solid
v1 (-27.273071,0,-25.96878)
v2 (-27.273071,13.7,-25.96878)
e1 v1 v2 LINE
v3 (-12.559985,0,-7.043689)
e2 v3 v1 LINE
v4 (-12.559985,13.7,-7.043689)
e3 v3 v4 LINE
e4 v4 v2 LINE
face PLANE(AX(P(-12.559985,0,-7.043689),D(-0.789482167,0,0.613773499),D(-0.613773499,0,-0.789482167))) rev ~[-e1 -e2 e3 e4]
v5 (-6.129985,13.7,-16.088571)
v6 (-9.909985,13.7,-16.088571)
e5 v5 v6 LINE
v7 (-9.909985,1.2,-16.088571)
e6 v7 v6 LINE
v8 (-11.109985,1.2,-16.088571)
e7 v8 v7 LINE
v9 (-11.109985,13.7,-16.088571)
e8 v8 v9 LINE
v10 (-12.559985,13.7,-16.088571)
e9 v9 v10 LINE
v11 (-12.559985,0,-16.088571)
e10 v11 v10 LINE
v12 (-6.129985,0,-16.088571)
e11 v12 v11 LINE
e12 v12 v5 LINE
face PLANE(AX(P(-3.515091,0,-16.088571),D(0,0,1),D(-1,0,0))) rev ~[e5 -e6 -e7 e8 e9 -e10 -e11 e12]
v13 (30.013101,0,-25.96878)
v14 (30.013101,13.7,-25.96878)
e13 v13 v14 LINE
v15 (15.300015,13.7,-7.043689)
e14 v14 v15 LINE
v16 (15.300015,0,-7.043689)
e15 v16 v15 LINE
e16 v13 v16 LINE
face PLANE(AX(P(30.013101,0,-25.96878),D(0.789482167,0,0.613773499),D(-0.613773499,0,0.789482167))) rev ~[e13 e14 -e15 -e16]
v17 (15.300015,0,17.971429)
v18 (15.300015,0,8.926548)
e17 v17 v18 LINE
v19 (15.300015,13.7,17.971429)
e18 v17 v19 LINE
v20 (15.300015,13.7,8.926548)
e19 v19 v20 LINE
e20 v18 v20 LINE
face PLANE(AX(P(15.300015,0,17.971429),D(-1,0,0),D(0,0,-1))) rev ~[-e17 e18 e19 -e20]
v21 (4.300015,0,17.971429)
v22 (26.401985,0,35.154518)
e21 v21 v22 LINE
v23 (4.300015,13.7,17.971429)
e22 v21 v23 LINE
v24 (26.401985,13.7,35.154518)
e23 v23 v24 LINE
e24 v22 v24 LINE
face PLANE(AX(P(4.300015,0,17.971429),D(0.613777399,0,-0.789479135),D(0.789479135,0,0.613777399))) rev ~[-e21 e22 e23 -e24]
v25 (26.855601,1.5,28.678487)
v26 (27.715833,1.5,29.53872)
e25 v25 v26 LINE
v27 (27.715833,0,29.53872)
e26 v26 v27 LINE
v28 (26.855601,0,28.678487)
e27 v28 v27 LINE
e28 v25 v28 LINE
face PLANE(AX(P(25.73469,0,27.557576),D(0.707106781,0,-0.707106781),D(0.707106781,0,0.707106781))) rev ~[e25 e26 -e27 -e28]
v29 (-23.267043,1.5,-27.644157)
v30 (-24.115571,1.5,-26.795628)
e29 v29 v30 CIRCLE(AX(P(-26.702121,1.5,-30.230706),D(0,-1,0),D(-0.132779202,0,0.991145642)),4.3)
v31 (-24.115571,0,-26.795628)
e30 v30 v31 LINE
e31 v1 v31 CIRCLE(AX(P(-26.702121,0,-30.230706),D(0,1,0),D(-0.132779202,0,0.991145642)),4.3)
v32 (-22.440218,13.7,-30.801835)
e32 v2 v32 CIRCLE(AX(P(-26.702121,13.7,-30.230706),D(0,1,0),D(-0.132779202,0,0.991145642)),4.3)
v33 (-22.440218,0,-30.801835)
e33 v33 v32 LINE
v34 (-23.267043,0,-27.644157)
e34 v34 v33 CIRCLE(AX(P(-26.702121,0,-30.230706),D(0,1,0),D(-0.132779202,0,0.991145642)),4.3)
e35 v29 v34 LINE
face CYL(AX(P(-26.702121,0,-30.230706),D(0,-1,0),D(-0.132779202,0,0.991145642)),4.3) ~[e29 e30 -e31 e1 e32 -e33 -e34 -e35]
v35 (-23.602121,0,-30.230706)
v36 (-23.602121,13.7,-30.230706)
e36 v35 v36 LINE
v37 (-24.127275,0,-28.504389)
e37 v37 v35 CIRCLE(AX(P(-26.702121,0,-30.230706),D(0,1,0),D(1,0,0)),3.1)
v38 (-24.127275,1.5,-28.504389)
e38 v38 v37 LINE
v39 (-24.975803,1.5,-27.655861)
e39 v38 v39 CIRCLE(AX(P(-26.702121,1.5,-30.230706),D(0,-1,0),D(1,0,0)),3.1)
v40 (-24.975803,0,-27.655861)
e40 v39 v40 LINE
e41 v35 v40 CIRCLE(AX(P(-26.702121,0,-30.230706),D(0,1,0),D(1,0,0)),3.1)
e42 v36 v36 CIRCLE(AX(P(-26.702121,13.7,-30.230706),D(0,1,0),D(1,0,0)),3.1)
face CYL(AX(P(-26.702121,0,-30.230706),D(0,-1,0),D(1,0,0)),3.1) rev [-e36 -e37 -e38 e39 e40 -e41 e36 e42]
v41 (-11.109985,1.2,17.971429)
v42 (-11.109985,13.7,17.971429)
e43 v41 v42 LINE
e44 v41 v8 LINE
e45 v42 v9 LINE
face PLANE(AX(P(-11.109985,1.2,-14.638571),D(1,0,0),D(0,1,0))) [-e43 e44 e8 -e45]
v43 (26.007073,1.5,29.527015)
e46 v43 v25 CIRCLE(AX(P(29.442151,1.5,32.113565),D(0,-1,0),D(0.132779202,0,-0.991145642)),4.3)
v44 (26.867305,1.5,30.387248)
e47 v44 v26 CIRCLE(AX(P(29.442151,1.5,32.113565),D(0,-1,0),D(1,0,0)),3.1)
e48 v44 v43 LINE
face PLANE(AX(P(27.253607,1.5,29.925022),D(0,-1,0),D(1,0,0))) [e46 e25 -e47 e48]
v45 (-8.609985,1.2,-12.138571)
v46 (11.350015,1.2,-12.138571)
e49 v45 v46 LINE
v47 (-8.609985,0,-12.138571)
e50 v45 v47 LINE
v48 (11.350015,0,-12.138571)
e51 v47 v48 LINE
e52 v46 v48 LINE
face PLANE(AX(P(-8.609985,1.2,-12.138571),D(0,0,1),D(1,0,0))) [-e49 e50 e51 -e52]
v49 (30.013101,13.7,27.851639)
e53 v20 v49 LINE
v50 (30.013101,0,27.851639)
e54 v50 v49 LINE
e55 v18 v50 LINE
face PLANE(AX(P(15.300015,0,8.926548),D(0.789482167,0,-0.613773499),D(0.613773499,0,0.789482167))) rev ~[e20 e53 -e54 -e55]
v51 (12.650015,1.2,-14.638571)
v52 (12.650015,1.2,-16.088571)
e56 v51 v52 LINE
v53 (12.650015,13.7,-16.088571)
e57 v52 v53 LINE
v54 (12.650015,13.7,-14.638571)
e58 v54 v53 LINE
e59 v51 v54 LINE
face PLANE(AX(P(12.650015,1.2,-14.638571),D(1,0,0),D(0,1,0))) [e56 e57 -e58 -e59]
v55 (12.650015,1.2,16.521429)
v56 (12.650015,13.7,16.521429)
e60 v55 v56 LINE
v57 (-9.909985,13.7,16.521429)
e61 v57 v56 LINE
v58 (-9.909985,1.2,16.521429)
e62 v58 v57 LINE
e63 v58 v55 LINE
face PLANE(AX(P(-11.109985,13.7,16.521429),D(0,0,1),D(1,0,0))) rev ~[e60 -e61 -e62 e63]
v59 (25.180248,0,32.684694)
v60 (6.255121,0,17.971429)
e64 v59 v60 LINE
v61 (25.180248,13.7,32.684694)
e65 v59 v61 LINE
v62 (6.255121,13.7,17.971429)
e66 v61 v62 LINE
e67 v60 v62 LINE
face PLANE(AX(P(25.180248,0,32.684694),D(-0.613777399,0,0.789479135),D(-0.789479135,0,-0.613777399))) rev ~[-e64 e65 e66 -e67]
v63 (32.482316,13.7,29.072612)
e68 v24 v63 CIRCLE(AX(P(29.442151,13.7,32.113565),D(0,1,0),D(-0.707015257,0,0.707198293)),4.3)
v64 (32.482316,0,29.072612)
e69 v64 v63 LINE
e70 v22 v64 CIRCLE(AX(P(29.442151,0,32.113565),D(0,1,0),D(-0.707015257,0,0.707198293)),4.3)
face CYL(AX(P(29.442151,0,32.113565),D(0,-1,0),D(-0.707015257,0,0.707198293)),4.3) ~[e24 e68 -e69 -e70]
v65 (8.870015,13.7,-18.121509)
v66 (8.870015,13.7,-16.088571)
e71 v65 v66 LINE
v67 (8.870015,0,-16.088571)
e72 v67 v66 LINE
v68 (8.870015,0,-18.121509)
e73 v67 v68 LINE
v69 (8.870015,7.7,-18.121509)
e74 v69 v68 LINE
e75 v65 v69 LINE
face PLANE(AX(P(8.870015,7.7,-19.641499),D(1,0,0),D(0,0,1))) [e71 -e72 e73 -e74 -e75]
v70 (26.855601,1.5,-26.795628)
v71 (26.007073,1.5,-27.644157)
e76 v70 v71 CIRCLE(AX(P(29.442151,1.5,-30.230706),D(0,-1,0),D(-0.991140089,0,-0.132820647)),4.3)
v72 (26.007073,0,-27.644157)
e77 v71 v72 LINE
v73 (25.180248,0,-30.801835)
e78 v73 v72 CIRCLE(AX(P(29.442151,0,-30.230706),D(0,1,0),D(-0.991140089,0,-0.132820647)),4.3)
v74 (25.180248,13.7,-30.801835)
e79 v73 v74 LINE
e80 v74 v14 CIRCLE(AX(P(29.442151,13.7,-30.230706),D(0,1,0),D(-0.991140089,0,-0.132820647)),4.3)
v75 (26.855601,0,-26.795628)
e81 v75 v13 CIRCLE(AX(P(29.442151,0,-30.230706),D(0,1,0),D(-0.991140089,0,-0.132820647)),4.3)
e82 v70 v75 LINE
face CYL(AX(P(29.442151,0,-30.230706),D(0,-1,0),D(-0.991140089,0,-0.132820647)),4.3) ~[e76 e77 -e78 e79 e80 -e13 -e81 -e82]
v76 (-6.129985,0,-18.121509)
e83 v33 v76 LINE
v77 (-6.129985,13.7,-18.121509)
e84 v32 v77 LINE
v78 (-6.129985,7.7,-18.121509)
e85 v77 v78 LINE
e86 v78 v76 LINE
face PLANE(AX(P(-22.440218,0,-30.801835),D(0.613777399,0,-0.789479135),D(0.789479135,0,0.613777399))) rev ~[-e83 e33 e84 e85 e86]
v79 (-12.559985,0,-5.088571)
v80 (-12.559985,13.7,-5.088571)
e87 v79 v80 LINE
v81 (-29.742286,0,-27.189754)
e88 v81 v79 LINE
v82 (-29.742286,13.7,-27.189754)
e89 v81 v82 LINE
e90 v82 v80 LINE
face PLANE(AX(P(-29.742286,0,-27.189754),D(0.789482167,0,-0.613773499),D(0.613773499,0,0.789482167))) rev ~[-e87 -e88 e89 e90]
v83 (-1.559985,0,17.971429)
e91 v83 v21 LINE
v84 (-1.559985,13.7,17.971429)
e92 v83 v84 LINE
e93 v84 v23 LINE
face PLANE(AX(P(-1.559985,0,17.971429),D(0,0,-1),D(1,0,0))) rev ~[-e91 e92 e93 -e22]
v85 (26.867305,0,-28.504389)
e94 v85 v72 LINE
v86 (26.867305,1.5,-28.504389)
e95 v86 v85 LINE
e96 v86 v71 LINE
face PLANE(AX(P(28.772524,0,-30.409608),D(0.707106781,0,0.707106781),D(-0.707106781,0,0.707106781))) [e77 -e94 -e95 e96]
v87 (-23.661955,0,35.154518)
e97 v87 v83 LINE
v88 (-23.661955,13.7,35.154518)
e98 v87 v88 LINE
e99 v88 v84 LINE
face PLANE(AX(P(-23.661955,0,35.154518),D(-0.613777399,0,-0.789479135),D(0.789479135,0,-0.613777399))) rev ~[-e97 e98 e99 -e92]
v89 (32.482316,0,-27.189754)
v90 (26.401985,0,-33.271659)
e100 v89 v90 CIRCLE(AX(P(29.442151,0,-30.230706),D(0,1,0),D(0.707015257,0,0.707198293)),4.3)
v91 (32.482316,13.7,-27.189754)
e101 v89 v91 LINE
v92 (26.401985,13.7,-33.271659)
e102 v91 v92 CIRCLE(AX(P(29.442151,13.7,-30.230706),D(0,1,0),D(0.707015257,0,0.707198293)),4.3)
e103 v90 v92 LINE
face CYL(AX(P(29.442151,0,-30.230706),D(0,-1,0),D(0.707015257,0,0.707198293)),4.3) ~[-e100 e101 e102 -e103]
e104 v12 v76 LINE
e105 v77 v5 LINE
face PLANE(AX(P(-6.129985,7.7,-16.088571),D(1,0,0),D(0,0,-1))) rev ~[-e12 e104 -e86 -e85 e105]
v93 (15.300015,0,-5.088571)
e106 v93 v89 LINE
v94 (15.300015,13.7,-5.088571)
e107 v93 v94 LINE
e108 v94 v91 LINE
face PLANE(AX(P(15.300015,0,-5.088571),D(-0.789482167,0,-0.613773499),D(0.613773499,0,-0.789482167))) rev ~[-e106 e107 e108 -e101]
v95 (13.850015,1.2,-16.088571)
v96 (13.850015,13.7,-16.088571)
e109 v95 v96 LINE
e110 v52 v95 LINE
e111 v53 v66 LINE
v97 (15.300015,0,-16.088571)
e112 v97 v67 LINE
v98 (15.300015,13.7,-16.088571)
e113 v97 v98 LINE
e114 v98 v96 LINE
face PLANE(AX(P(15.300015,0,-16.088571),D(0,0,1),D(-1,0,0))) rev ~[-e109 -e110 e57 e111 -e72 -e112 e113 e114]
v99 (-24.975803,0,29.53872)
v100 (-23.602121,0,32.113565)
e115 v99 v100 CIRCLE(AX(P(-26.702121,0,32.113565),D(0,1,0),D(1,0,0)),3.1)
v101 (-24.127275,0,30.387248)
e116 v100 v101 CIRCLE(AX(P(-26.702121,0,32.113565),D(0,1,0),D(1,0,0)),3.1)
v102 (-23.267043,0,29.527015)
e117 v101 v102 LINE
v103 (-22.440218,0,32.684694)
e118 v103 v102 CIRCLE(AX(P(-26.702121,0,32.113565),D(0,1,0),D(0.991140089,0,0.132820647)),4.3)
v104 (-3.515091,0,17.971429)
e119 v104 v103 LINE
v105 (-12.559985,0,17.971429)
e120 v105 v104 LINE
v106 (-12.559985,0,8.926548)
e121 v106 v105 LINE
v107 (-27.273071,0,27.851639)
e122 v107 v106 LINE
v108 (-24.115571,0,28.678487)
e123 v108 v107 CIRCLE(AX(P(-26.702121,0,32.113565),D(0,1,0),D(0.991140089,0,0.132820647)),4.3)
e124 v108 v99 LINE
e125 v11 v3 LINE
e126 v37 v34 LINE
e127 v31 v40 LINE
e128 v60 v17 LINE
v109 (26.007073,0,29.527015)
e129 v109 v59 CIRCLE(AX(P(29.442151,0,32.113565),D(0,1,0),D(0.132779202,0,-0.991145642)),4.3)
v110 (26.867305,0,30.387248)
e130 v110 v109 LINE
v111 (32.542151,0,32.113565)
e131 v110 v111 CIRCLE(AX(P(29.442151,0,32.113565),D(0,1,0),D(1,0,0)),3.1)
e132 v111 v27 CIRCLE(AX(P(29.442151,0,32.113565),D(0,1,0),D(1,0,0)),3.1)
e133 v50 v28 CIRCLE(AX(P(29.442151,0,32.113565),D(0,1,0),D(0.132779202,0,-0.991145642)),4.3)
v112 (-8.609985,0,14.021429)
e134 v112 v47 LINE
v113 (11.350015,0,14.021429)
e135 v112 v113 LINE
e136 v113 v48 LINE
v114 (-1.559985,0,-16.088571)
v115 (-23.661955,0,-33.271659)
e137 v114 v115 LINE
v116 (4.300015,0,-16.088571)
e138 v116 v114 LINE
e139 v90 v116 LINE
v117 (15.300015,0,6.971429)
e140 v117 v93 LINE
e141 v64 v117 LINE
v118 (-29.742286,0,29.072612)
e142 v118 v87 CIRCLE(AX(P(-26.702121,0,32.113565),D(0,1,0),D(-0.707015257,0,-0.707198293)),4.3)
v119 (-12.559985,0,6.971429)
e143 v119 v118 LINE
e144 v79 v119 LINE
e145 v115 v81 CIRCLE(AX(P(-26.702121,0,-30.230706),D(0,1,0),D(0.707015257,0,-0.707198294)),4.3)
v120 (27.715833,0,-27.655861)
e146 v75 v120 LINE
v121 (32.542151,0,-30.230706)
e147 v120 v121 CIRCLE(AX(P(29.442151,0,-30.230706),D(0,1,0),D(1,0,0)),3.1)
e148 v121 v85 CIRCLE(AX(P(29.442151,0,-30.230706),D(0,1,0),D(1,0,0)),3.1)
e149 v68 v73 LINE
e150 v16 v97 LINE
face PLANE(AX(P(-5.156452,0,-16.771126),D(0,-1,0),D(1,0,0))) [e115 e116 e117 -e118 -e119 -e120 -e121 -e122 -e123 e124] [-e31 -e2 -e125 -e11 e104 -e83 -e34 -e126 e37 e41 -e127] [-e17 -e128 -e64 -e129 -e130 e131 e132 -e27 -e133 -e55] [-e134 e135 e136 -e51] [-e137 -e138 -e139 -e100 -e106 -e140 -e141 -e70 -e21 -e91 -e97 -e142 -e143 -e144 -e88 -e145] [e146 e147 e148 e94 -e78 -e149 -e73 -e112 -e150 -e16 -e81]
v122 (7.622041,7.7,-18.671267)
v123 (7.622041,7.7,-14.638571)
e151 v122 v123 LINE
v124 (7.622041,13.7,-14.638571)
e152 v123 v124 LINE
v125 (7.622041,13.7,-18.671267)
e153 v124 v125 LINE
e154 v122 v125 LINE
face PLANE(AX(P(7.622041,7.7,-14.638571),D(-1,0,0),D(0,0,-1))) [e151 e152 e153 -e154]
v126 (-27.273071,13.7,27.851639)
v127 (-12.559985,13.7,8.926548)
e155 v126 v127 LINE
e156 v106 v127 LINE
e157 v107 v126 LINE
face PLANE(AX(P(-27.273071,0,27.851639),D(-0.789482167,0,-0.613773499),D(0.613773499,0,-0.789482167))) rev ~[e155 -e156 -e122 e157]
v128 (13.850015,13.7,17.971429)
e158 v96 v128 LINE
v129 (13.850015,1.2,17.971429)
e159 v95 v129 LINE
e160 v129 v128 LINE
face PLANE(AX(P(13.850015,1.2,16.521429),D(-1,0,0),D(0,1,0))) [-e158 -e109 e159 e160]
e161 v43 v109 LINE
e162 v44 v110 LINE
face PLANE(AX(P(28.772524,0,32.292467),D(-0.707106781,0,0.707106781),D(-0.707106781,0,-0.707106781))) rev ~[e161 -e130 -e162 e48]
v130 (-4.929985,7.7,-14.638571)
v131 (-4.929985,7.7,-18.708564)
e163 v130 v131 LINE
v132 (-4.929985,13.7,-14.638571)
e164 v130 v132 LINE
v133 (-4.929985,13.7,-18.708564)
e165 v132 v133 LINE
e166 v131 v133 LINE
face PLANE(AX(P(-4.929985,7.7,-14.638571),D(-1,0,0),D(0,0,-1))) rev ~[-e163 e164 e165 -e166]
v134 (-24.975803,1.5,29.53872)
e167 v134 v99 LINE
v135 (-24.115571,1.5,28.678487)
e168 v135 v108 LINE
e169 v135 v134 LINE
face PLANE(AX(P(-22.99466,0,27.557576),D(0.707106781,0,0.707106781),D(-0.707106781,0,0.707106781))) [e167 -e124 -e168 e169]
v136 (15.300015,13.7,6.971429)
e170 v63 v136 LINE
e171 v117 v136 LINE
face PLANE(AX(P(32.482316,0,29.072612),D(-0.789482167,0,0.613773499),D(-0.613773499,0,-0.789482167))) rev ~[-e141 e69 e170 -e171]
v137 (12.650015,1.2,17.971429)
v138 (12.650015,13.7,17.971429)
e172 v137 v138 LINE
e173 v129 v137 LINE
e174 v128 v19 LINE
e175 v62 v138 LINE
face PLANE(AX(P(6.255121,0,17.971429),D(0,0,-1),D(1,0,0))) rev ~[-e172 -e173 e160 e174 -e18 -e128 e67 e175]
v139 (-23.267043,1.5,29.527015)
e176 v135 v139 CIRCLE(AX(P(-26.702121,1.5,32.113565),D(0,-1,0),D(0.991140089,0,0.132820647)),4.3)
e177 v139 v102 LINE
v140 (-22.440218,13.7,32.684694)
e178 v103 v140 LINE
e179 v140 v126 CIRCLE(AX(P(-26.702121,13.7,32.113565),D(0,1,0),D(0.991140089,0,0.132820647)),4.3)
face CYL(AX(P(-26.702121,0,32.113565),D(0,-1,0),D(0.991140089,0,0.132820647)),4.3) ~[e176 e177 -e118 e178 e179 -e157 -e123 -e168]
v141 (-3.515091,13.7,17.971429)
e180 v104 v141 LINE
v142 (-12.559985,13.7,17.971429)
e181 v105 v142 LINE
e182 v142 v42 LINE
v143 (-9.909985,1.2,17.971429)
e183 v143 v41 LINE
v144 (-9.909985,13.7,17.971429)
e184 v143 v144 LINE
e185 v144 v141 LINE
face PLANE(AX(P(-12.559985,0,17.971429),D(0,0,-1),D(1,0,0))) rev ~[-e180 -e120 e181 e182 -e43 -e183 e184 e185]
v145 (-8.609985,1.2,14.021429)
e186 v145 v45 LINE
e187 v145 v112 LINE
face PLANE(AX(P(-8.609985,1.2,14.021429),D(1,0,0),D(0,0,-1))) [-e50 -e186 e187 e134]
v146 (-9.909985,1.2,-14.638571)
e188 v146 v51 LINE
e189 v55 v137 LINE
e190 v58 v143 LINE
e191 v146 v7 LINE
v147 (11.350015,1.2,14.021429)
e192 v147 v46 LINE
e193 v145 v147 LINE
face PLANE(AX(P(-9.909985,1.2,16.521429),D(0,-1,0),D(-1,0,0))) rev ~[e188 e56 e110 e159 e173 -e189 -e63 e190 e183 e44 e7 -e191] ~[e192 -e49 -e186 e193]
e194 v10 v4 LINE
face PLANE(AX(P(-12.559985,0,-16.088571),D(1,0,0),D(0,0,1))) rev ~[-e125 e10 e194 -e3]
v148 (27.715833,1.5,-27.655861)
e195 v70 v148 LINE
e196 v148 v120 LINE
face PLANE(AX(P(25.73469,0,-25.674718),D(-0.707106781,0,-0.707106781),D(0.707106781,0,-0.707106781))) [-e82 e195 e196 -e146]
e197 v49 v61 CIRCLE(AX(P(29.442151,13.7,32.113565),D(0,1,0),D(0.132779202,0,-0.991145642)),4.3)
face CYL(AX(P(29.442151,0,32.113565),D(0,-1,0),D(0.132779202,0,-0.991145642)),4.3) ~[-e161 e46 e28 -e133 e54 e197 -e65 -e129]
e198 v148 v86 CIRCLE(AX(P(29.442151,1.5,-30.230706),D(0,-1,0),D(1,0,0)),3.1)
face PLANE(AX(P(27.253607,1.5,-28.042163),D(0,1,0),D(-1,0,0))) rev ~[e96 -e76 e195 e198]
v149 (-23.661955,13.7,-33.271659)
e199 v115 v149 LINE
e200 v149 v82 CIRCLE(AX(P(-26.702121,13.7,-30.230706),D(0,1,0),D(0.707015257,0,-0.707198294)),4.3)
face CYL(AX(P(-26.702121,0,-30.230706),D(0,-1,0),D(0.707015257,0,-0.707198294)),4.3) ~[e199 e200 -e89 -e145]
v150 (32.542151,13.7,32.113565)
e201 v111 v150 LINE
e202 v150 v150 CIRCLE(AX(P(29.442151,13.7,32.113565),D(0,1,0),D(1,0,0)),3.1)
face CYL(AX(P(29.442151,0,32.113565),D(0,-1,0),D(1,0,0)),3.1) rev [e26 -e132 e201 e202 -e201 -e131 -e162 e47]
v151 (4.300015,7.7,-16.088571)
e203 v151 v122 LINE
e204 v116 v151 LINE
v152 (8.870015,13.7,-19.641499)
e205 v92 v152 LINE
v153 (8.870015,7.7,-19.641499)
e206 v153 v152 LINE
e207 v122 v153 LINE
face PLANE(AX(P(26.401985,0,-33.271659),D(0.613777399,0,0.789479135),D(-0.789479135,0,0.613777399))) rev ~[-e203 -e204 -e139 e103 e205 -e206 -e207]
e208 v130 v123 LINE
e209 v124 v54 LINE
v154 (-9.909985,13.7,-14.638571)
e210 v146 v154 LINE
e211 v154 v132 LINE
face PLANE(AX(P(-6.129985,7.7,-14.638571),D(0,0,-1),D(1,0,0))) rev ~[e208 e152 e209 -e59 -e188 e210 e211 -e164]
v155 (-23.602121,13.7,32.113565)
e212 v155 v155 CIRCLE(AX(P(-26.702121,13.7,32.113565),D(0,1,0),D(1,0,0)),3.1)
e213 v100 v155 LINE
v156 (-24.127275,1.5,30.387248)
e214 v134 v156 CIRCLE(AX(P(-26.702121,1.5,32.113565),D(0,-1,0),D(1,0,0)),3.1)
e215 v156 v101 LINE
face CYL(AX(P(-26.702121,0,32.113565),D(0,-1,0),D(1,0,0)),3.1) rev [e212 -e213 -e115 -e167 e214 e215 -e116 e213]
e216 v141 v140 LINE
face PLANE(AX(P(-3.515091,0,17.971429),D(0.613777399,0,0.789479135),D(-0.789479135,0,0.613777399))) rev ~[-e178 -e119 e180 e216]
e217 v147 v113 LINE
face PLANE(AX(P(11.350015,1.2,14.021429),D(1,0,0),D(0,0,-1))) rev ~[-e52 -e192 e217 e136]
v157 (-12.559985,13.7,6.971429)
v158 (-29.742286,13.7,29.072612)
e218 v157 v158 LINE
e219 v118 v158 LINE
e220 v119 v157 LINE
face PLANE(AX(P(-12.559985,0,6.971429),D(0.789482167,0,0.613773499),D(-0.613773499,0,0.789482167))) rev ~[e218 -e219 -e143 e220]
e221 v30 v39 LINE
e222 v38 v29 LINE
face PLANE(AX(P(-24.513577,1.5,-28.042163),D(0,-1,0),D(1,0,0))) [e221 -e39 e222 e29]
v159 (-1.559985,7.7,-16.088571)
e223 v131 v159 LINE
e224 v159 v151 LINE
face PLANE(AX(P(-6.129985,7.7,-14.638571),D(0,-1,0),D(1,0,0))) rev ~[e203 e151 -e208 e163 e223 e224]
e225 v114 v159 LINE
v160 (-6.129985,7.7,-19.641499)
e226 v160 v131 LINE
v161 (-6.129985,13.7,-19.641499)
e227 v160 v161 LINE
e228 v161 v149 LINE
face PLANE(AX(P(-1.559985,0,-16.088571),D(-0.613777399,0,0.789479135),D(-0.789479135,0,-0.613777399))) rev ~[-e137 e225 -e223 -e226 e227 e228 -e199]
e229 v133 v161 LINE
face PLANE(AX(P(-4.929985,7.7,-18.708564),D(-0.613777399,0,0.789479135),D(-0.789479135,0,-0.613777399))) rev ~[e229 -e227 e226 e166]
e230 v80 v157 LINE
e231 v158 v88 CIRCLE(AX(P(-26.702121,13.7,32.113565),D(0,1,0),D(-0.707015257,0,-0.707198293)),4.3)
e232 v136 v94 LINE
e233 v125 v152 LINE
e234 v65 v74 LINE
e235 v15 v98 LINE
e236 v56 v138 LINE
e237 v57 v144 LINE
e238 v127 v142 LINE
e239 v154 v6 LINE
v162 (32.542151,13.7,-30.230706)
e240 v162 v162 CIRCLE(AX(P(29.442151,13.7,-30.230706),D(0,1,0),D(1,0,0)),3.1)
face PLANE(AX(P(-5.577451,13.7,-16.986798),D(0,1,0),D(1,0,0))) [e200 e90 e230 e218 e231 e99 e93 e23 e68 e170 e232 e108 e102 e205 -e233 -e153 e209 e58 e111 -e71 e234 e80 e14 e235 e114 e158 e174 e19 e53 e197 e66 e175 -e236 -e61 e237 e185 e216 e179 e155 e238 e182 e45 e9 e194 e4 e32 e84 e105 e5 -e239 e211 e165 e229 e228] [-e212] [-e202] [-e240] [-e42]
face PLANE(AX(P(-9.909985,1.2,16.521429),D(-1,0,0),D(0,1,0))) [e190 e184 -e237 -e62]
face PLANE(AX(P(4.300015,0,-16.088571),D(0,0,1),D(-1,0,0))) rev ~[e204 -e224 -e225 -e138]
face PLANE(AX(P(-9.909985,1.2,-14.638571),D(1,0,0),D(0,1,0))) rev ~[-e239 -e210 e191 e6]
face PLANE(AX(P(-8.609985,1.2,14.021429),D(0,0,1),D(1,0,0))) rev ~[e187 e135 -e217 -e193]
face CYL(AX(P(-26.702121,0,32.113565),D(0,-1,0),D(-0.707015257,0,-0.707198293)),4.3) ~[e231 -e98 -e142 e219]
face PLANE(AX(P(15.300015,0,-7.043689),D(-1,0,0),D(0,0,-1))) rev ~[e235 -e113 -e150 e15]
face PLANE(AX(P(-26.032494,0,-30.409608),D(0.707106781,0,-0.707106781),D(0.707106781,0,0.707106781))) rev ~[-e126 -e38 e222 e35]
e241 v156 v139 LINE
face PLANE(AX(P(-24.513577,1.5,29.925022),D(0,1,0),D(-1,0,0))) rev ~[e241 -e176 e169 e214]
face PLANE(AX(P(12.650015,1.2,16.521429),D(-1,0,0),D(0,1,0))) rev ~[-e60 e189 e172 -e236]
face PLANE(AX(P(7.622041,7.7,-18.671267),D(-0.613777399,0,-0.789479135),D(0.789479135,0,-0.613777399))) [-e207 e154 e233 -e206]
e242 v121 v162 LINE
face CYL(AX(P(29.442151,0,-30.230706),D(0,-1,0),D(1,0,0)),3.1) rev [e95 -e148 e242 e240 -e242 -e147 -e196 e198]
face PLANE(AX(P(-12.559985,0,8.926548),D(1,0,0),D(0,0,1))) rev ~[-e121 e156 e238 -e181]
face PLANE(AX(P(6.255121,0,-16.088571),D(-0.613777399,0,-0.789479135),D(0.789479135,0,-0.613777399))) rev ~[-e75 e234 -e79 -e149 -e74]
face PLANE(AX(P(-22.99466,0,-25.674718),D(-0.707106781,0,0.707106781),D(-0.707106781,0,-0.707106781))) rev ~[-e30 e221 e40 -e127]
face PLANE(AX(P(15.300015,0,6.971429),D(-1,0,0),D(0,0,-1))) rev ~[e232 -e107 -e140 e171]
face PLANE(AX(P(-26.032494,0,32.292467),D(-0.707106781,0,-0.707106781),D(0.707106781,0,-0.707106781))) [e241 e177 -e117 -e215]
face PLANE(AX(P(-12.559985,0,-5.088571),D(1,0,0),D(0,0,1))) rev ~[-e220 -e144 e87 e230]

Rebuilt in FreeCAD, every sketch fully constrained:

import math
import FreeCAD as App
import Part
import Sketcher
Q = App.Units.Quantity


def add_polygon(sketch, points):
    """Adds a closed chain of lines whose ends are joined by coincident constraints."""
    first, n = sketch.GeometryCount, len(points)
    for a, b in zip(points, points[1:] + points[:1]):
        sketch.addGeometry(Part.LineSegment(App.Vector(*a, 0), App.Vector(*b, 0)), False)
    for i in range(n):
        sketch.addConstraint(Sketcher.Constraint("Coincident", first + i, 2, first + (i + 1) % n, 1))

doc = App.newDocument("Part")
body = doc.addObject("PartDesign::Body", "Body")

sketch1 = body.newObject("Sketcher::SketchObject", "Sketch")
sketch1.AttachmentSupport = (doc.getObject("XZ_Plane"), [""])
sketch1.MapMode = "FlatFace"
sketch1.addGeometry([
    Part.LineSegment(App.Vector(-1.6, -16.1, 0), App.Vector(-23.7, -33.3, 0)),
    Part.ArcOfCircle(Part.Circle(App.Vector(-26.7, -30.2, 0), App.Vector(0, 0, 1), 4.3), math.radians(135), math.radians(315)),
    Part.LineSegment(App.Vector(-29.7, -27.2, 0), App.Vector(-12.6, -5.1, 0)),
    Part.LineSegment(App.Vector(-12.6, -5.1, 0), App.Vector(-12.6, 7, 0)),
    Part.LineSegment(App.Vector(-12.6, 7, 0), App.Vector(-29.7, 29.1, 0)),
    Part.ArcOfCircle(Part.Circle(App.Vector(-26.7, 32.1, 0), App.Vector(0, 0, 1), 4.3), math.radians(45), math.radians(225)),
    Part.LineSegment(App.Vector(-23.7, 35.2, 0), App.Vector(-1.6, 18, 0)),
    Part.LineSegment(App.Vector(-1.6, 18, 0), App.Vector(4.3, 18, 0)),
    Part.LineSegment(App.Vector(4.3, 18, 0), App.Vector(26.4, 35.2, 0)),
    Part.ArcOfCircle(Part.Circle(App.Vector(29.4, 32.1, 0), App.Vector(0, 0, 1), 4.3), math.radians(-45), math.radians(135)),
    Part.LineSegment(App.Vector(32.5, 29.1, 0), App.Vector(15.3, 7, 0)),
    Part.LineSegment(App.Vector(15.3, 7, 0), App.Vector(15.3, -5.1, 0)),
    Part.LineSegment(App.Vector(15.3, -5.1, 0), App.Vector(32.5, -27.2, 0)),
    Part.ArcOfCircle(Part.Circle(App.Vector(29.4, -30.2, 0), App.Vector(0, 0, 1), 4.3), math.radians(-135), math.radians(45)),
    Part.LineSegment(App.Vector(26.4, -33.3, 0), App.Vector(4.3, -16.1, 0)),
    Part.LineSegment(App.Vector(4.3, -16.1, 0), App.Vector(-1.6, -16.1, 0)),
    Part.Circle(App.Vector(-26.7, 32.1, 0), App.Vector(0, 0, 1), 3.1),
    Part.LineSegment(App.Vector(-27.3, 27.9, 0), App.Vector(-12.6, 8.9, 0)),
    Part.LineSegment(App.Vector(-12.6, 8.9, 0), App.Vector(-12.6, 18, 0)),
    Part.LineSegment(App.Vector(-12.6, 18, 0), App.Vector(-3.5, 18, 0)),
    Part.LineSegment(App.Vector(-3.5, 18, 0), App.Vector(-22.4, 32.7, 0)),
    Part.ArcOfCircle(Part.Circle(App.Vector(-26.7, 32.1, 0), App.Vector(0, 0, 1), 4.3), math.radians(-98), math.radians(8)),
    Part.Circle(App.Vector(29.4, 32.1, 0), App.Vector(0, 0, 1), 3.1),
    Part.LineSegment(App.Vector(6.3, 18, 0), App.Vector(15.3, 18, 0)),
    Part.LineSegment(App.Vector(15.3, 18, 0), App.Vector(15.3, 8.9, 0)),
    Part.LineSegment(App.Vector(15.3, 8.9, 0), App.Vector(30, 27.9, 0)),
    Part.ArcOfCircle(Part.Circle(App.Vector(29.4, 32.1, 0), App.Vector(0, 0, 1), 4.3), math.radians(172), math.radians(278)),
    Part.LineSegment(App.Vector(25.2, 32.7, 0), App.Vector(6.3, 18, 0)),
    Part.LineSegment(App.Vector(-22.4, -30.8, 0), App.Vector(-3.5, -16.1, 0)),
    Part.LineSegment(App.Vector(-3.5, -16.1, 0), App.Vector(-12.6, -16.1, 0)),
    Part.LineSegment(App.Vector(-12.6, -16.1, 0), App.Vector(-12.6, -7, 0)),
    Part.LineSegment(App.Vector(-12.6, -7, 0), App.Vector(-27.3, -26, 0)),
    Part.ArcOfCircle(Part.Circle(App.Vector(-26.7, -30.2, 0), App.Vector(0, 0, 1), 4.3), math.radians(-8), math.radians(98)),
    Part.Circle(App.Vector(-26.7, -30.2, 0), App.Vector(0, 0, 1), 3.1),
    Part.LineSegment(App.Vector(30, -26, 0), App.Vector(15.3, -7, 0)),
    Part.LineSegment(App.Vector(15.3, -7, 0), App.Vector(15.3, -16.1, 0)),
    Part.LineSegment(App.Vector(15.3, -16.1, 0), App.Vector(6.3, -16.1, 0)),
    Part.LineSegment(App.Vector(6.3, -16.1, 0), App.Vector(25.2, -30.8, 0)),
    Part.ArcOfCircle(Part.Circle(App.Vector(29.4, -30.2, 0), App.Vector(0, 0, 1), 4.3), math.radians(82), math.radians(188)),
    Part.Circle(App.Vector(29.4, -30.2, 0), App.Vector(0, 0, 1), 3.1),
], False)
sketch1.addConstraint([
    Sketcher.Constraint("Coincident", 0, 2, 1, 2),
    Sketcher.Constraint("Coincident", 1, 1, 2, 1),
    Sketcher.Constraint("Coincident", 2, 2, 3, 1),
    Sketcher.Constraint("Coincident", 3, 2, 4, 1),
    Sketcher.Constraint("Coincident", 4, 2, 5, 2),
    Sketcher.Constraint("Coincident", 5, 1, 6, 1),
    Sketcher.Constraint("Coincident", 6, 2, 7, 1),
    Sketcher.Constraint("Coincident", 7, 2, 8, 1),
    Sketcher.Constraint("Coincident", 8, 2, 9, 2),
    Sketcher.Constraint("Coincident", 9, 1, 10, 1),
    Sketcher.Constraint("Coincident", 10, 2, 11, 1),
    Sketcher.Constraint("Coincident", 11, 2, 12, 1),
    Sketcher.Constraint("Coincident", 12, 2, 13, 2),
    Sketcher.Constraint("Coincident", 13, 1, 14, 1),
    Sketcher.Constraint("Coincident", 14, 2, 15, 1),
    Sketcher.Constraint("Coincident", 15, 2, 0, 1),
    Sketcher.Constraint("Coincident", 17, 2, 18, 1),
    Sketcher.Constraint("Coincident", 18, 2, 19, 1),
    Sketcher.Constraint("Coincident", 19, 2, 20, 1),
    Sketcher.Constraint("Coincident", 20, 2, 21, 2),
    Sketcher.Constraint("Coincident", 21, 1, 17, 1),
    Sketcher.Constraint("Coincident", 23, 2, 24, 1),
    Sketcher.Constraint("Coincident", 24, 2, 25, 1),
    Sketcher.Constraint("Coincident", 25, 2, 26, 2),
    Sketcher.Constraint("Coincident", 26, 1, 27, 1),
    Sketcher.Constraint("Coincident", 27, 2, 23, 1),
    Sketcher.Constraint("Coincident", 28, 2, 29, 1),
    Sketcher.Constraint("Coincident", 29, 2, 30, 1),
    Sketcher.Constraint("Coincident", 30, 2, 31, 1),
    Sketcher.Constraint("Coincident", 31, 2, 32, 2),
    Sketcher.Constraint("Coincident", 32, 1, 28, 1),
    Sketcher.Constraint("Coincident", 34, 2, 35, 1),
    Sketcher.Constraint("Coincident", 35, 2, 36, 1),
    Sketcher.Constraint("Coincident", 36, 2, 37, 1),
    Sketcher.Constraint("Coincident", 37, 2, 38, 2),
    Sketcher.Constraint("Coincident", 38, 1, 34, 1),
    Sketcher.Constraint("Vertical", 3),
    Sketcher.Constraint("Horizontal", 7),
    Sketcher.Constraint("Vertical", 11),
    Sketcher.Constraint("Horizontal", 15),
    Sketcher.Constraint("Vertical", 18),
    Sketcher.Constraint("Horizontal", 19),
    Sketcher.Constraint("Horizontal", 23),
    Sketcher.Constraint("Vertical", 24),
    Sketcher.Constraint("Horizontal", 29),
    Sketcher.Constraint("Vertical", 30),
    Sketcher.Constraint("Vertical", 35),
    Sketcher.Constraint("Horizontal", 36),
    Sketcher.Constraint("Coincident", 16, 3, 5, 3),
    Sketcher.Constraint("Coincident", 21, 3, 5, 3),
    Sketcher.Constraint("Coincident", 22, 3, 9, 3),
    Sketcher.Constraint("Coincident", 26, 3, 9, 3),
    Sketcher.Constraint("Coincident", 32, 3, 1, 3),
    Sketcher.Constraint("Coincident", 33, 3, 1, 3),
    Sketcher.Constraint("Coincident", 38, 3, 13, 3),
    Sketcher.Constraint("Coincident", 39, 3, 13, 3),
    Sketcher.Constraint("Equal", 1, 5),
    Sketcher.Constraint("Equal", 5, 9),
    Sketcher.Constraint("Equal", 9, 13),
    Sketcher.Constraint("Equal", 13, 21),
    Sketcher.Constraint("Equal", 16, 22),
    Sketcher.Constraint("Equal", 21, 26),
    Sketcher.Constraint("Equal", 26, 32),
    Sketcher.Constraint("Equal", 22, 33),
    Sketcher.Constraint("Equal", 32, 38),
    Sketcher.Constraint("Equal", 33, 39),
    Sketcher.Constraint("Parallel", 0, 8),
    Sketcher.Constraint("Parallel", 2, 10),
    Sketcher.Constraint("Parallel", 4, 12),
    Sketcher.Constraint("Parallel", 6, 14),
    Sketcher.Constraint("Parallel", 12, 17),
    Sketcher.Constraint("Parallel", 14, 20),
    Sketcher.Constraint("Parallel", 10, 25),
    Sketcher.Constraint("Parallel", 8, 27),
    Sketcher.Constraint("Parallel", 27, 28),
    Sketcher.Constraint("Parallel", 25, 31),
    Sketcher.Constraint("Parallel", 17, 34),
    Sketcher.Constraint("Parallel", 20, 37),
    Sketcher.Constraint("Horizontal", 5, 3, 9, 3),
    Sketcher.Constraint("Horizontal", 1, 3, 13, 3),
    Sketcher.Constraint("Horizontal", 5, 1, 8, 2),
    Sketcher.Constraint("Horizontal", 4, 2, 9, 1),
    Sketcher.Constraint("Horizontal", 3, 2, 10, 2),
    Sketcher.Constraint("Horizontal", 2, 2, 11, 2),
    Sketcher.Constraint("Horizontal", 1, 1, 12, 2),
    Sketcher.Constraint("Horizontal", 0, 2, 13, 1),
    Sketcher.Constraint("Horizontal", 7, 2, 18, 2),
    Sketcher.Constraint("Horizontal", 19, 2, 23, 2),
    Sketcher.Constraint("Horizontal", 17, 2, 24, 2),
    Sketcher.Constraint("Horizontal", 21, 1, 25, 2),
    Sketcher.Constraint("Horizontal", 20, 2, 26, 1),
    Sketcher.Constraint("Horizontal", 15, 2, 28, 2),
    Sketcher.Constraint("Horizontal", 30, 2, 34, 2),
    Sketcher.Constraint("Horizontal", 29, 2, 35, 2),
    Sketcher.Constraint("Horizontal", 32, 1, 37, 2),
    Sketcher.Constraint("Horizontal", 31, 2, 38, 1),
    Sketcher.Constraint("Vertical", 1, 3, 5, 3),
    Sketcher.Constraint("Vertical", 9, 3, 13, 3),
    Sketcher.Constraint("Vertical", 1, 1, 4, 2),
    Sketcher.Constraint("Vertical", 0, 2, 5, 1),
    Sketcher.Constraint("Vertical", 7, 2, 14, 2),
    Sketcher.Constraint("Vertical", 6, 2, 15, 2),
    Sketcher.Constraint("Vertical", 3, 2, 17, 2),
    Sketcher.Constraint("Vertical", 19, 2, 28, 2),
    Sketcher.Constraint("Vertical", 18, 2, 29, 2),
    Sketcher.Constraint("Vertical", 21, 1, 31, 2),
    Sketcher.Constraint("Diameter", 16, Q("6.2 mm")),
    Sketcher.Constraint("Radius", 1, Q("4.3 mm")),
    Sketcher.Constraint("DistanceX", 3, 2, 6, 2, Q("11 mm")),
    Sketcher.Constraint("DistanceY", 3, 2, 6, 2, Q("11 mm")),
    Sketcher.Constraint("DistanceX", 7, 1, 7, 2, Q("5.86 mm")),
    Sketcher.Constraint("DistanceY", 3, 1, 3, 2, Q("12.06 mm")),
    Sketcher.Constraint("DistanceY", 18, 1, 18, 2, Q("9.044881 mm")),
    Sketcher.Constraint("DistanceX", -1, 1, 25, 2, Q("30.013101 mm")),
    Sketcher.Constraint("DistanceX", 1, 1, 2, 2, Q("17.182301 mm")),
    Sketcher.Constraint("Distance", 2, Q("27.994531 mm")),
    Sketcher.Constraint("DistanceX", 19, 1, 19, 2, Q("9.044894 mm")),
    Sketcher.Constraint("DistanceX", 1, 3, -1, 1, Q("26.702121 mm")),
    Sketcher.Constraint("DistanceY", 0, 2, -1, 1, Q("33.271659 mm")),
    Sketcher.Constraint("DistanceY", 2, 2, -1, 1, Q("5.088571 mm")),
])
pad1 = body.newObject("PartDesign::Pad", "Pad")
pad1.Profile = sketch1
pad1.Length = 13.7
pad1.Reversed = True

sketch2 = body.newObject("Sketcher::SketchObject", "Sketch001")
sketch2.AttachmentSupport = (doc.getObject("XZ_Plane"), [""])
sketch2.MapMode = "FlatFace"
sketch2.AttachmentOffset = App.Placement(App.Vector(0, 0, -13.7), App.Rotation())
add_polygon(sketch2, [(-11, -15), (-11, 17), (14, 17), (14, -15)])
sketch2.addConstraint([
    Sketcher.Constraint("Vertical", 0),
    Sketcher.Constraint("Horizontal", 1),
    Sketcher.Constraint("Vertical", 2),
    Sketcher.Constraint("Horizontal", 3),
    Sketcher.Constraint("DistanceX", 1, 1, 1, 2, Q("24.96 mm")),
    Sketcher.Constraint("DistanceY", 0, 1, 0, 2, Q("31.16 mm")),
    Sketcher.Constraint("DistanceY", -1, 1, 0, 2, Q("16.521429 mm")),
    Sketcher.Constraint("DistanceX", 0, 2, -1, 1, Q("11.109985 mm")),
])
pocket1 = body.newObject("PartDesign::Pocket", "Pocket")
pocket1.Profile = sketch2
pocket1.Length = 12.5
pocket1.Reversed = True

sketch3 = body.newObject("Sketcher::SketchObject", "Sketch002")
sketch3.AttachmentSupport = (doc.getObject("XZ_Plane"), [""])
sketch3.MapMode = "FlatFace"
sketch3.AttachmentOffset = App.Placement(App.Vector(0, 0, -1.2), App.Rotation())
add_polygon(sketch3, [(-9, -12), (-9, 14), (11, 14), (11, -12)])
sketch3.addConstraint([
    Sketcher.Constraint("Vertical", 0),
    Sketcher.Constraint("Horizontal", 1),
    Sketcher.Constraint("Vertical", 2),
    Sketcher.Constraint("Horizontal", 3),
    Sketcher.Constraint("DistanceX", 1, 1, 1, 2, Q("19.96 mm")),
    Sketcher.Constraint("DistanceY", 0, 1, 0, 2, Q("26.16 mm")),
    Sketcher.Constraint("DistanceY", -1, 1, 0, 2, Q("14.021429 mm")),
    Sketcher.Constraint("DistanceX", 0, 2, -1, 1, Q("8.609985 mm")),
])
pocket2 = body.newObject("PartDesign::Pocket", "Pocket001")
pocket2.Profile = sketch3
pocket2.Length = 12.5
pocket2.Reversed = True

sketch4 = body.newObject("Sketcher::SketchObject", "Sketch003")
sketch4.AttachmentSupport = (doc.getObject("XY_Plane"), [""])
sketch4.MapMode = "FlatFace"
sketch4.AttachmentOffset = App.Placement(App.Vector(0, 0, -14.638571), App.Rotation())
add_polygon(sketch4, [(-11.1, 13.7), (-11.1, 1.2), (-9.9, 1.2), (-9.9, 13.7)])
add_polygon(sketch4, [(12.7, 13.7), (12.7, 1.2), (13.9, 1.2), (13.9, 13.7)])
sketch4.addConstraint([
    Sketcher.Constraint("Vertical", 0),
    Sketcher.Constraint("Horizontal", 1),
    Sketcher.Constraint("Vertical", 2),
    Sketcher.Constraint("Horizontal", 3),
    Sketcher.Constraint("Vertical", 4),
    Sketcher.Constraint("Horizontal", 5),
    Sketcher.Constraint("Vertical", 6),
    Sketcher.Constraint("Horizontal", 7),
    Sketcher.Constraint("Horizontal", 1, 2, 4, 2),
    Sketcher.Constraint("Horizontal", 3, 2, 6, 2),
    Sketcher.Constraint("Equal", 3, 5),
    Sketcher.Constraint("DistanceX", 1, 1, 1, 2, Q("1.2 mm")),
    Sketcher.Constraint("DistanceY", 0, 2, 0, 1, Q("12.5 mm")),
    Sketcher.Constraint("DistanceY", -1, 1, 0, 2, Q("1.2 mm")),
    Sketcher.Constraint("DistanceX", 1, 2, 4, 2, Q("22.56 mm")),
    Sketcher.Constraint("DistanceX", 0, 2, -1, 1, Q("11.109985 mm")),
])
pocket3 = body.newObject("PartDesign::Pocket", "Pocket002")
pocket3.Profile = sketch4
pocket3.Length = 1.45

sketch5 = body.newObject("Sketcher::SketchObject", "Sketch004")
sketch5.AttachmentSupport = (doc.getObject("XY_Plane"), [""])
sketch5.MapMode = "FlatFace"
sketch5.AttachmentOffset = App.Placement(App.Vector(0, 0, 16.521429), App.Rotation())
add_polygon(sketch5, [(13.9, 13.7), (13.9, 1.2), (12.7, 1.2), (12.7, 13.7)])
add_polygon(sketch5, [(-9.9, 13.7), (-9.9, 1.2), (-11.1, 1.2), (-11.1, 13.7)])
sketch5.addConstraint([
    Sketcher.Constraint("Vertical", 0),
    Sketcher.Constraint("Horizontal", 1),
    Sketcher.Constraint("Vertical", 2),
    Sketcher.Constraint("Horizontal", 3),
    Sketcher.Constraint("Vertical", 4),
    Sketcher.Constraint("Horizontal", 5),
    Sketcher.Constraint("Vertical", 6),
    Sketcher.Constraint("Horizontal", 7),
    Sketcher.Constraint("Horizontal", 1, 2, 4, 2),
    Sketcher.Constraint("Horizontal", 3, 2, 6, 2),
    Sketcher.Constraint("Equal", 3, 5),
    Sketcher.Constraint("DistanceX", 1, 2, 1, 1, Q("1.2 mm")),
    Sketcher.Constraint("DistanceY", 0, 2, 0, 1, Q("12.5 mm")),
    Sketcher.Constraint("DistanceY", -1, 1, 0, 2, Q("1.2 mm")),
    Sketcher.Constraint("DistanceX", 4, 2, 1, 2, Q("22.56 mm")),
    Sketcher.Constraint("DistanceX", -1, 1, 0, 2, Q("13.850015 mm")),
])
pocket4 = body.newObject("PartDesign::Pocket", "Pocket003")
pocket4.Profile = sketch5
pocket4.Length = 1.45
pocket4.Reversed = True

sketch6 = body.newObject("Sketcher::SketchObject", "Sketch005")
sketch6.AttachmentSupport = (doc.getObject("XZ_Plane"), [""])
sketch6.MapMode = "FlatFace"
add_polygon(sketch6, [(-26.9, -29.6), (-26, -30.4), (-22.1, -26.5), (-23, -25.7)])
add_polygon(sketch6, [(25.7, -25.7), (24.9, -26.5), (28.8, -30.4), (29.6, -29.6)])
add_polygon(sketch6, [(29.6, 31.4), (28.8, 32.3), (24.9, 28.4), (25.7, 27.6)])
add_polygon(sketch6, [(-23, 27.6), (-22.1, 28.4), (-26, 32.3), (-26.9, 31.4)])
sketch6.addConstraint([
    Sketcher.Constraint("Perpendicular", 0, 1),
    Sketcher.Constraint("Perpendicular", 1, 2),
    Sketcher.Constraint("Perpendicular", 2, 3),
    Sketcher.Constraint("Parallel", 3, 4),
    Sketcher.Constraint("Perpendicular", 4, 5),
    Sketcher.Constraint("Perpendicular", 5, 6),
    Sketcher.Constraint("Perpendicular", 6, 7),
    Sketcher.Constraint("Parallel", 7, 8),
    Sketcher.Constraint("Perpendicular", 8, 9),
    Sketcher.Constraint("Perpendicular", 9, 10),
    Sketcher.Constraint("Perpendicular", 10, 11),
    Sketcher.Constraint("Parallel", 11, 12),
    Sketcher.Constraint("Perpendicular", 12, 13),
    Sketcher.Constraint("Perpendicular", 13, 14),
    Sketcher.Constraint("Perpendicular", 14, 15),
    Sketcher.Constraint("Horizontal", 1, 2, 4, 2),
    Sketcher.Constraint("Horizontal", 0, 2, 5, 2),
    Sketcher.Constraint("Horizontal", 3, 2, 6, 2),
    Sketcher.Constraint("Horizontal", 9, 2, 12, 2),
    Sketcher.Constraint("Horizontal", 8, 2, 13, 2),
    Sketcher.Constraint("Horizontal", 11, 2, 14, 2),
    Sketcher.Constraint("Vertical", 5, 2, 8, 2),
    Sketcher.Constraint("Vertical", 4, 2, 9, 2),
    Sketcher.Constraint("Vertical", 7, 2, 10, 2),
    Sketcher.Constraint("Vertical", 1, 2, 12, 2),
    Sketcher.Constraint("Vertical", 0, 2, 13, 2),
    Sketcher.Constraint("Distance", 0, Q("1.2 mm")),
    Sketcher.Constraint("DistanceY", 0, 2, -1, 1, Q("30.409608 mm")),
    Sketcher.Constraint("DistanceX", 2, 2, -1, 1, Q("22.99466 mm")),
    Sketcher.Constraint("DistanceX", -1, 1, 7, 2, Q("25.73469 mm")),
    Sketcher.Constraint("DistanceY", -1, 1, 11, 2, Q("31.443938 mm")),
    Sketcher.Constraint("DistanceY", 0, 2, 2, 2, Q("4.73489 mm")),
])
pocket5 = body.newObject("PartDesign::Pocket", "Pocket004")
pocket5.Profile = sketch6
pocket5.Length = 1.5

sketch7 = body.newObject("Sketcher::SketchObject", "Sketch006")
sketch7.AttachmentSupport = (doc.getObject("XY_Plane"), [""])
sketch7.MapMode = "FlatFace"
sketch7.AttachmentOffset = App.Placement(App.Vector(0, 0, -14.638571), App.Rotation())
add_polygon(sketch7, [(-6, 14), (-6, 8), (9, 8), (9, 14)])
sketch7.addConstraint([
    Sketcher.Constraint("Vertical", 0),
    Sketcher.Constraint("Horizontal", 1),
    Sketcher.Constraint("Vertical", 2),
    Sketcher.Constraint("Horizontal", 3),
    Sketcher.Constraint("DistanceX", 1, 1, 1, 2, Q("15 mm")),
    Sketcher.Constraint("DistanceY", 0, 2, 0, 1, Q("6 mm")),
    Sketcher.Constraint("DistanceY", -1, 1, 0, 2, Q("7.7 mm")),
    Sketcher.Constraint("DistanceX", 0, 2, -1, 1, Q("6.129985 mm")),
])
pocket6 = body.newObject("PartDesign::Pocket", "Pocket005")
pocket6.Profile = sketch7
pocket6.Type = "ThroughAll"

sketch8 = body.newObject("Sketcher::SketchObject", "Sketch007")
sketch8.AttachmentSupport = (doc.getObject("XZ_Plane"), [""])
sketch8.MapMode = "FlatFace"
sketch8.AttachmentOffset = App.Placement(App.Vector(0, 0, -7.7), App.Rotation())
add_polygon(sketch8, [(-6.1, -19.6), (-6.1, -14.6), (-4.9, -14.6), (-4.9, -18.7)])
add_polygon(sketch8, [(8.9, -14.6), (8.9, -19.6), (7.6, -18.7), (7.6, -14.6)])
sketch8.addConstraint([
    Sketcher.Constraint("Vertical", 0),
    Sketcher.Constraint("Horizontal", 1),
    Sketcher.Constraint("Vertical", 2),
    Sketcher.Constraint("Vertical", 4),
    Sketcher.Constraint("Vertical", 6),
    Sketcher.Constraint("Horizontal", 7),
    Sketcher.Constraint("Horizontal", 3, 2, 4, 2),
    Sketcher.Constraint("Horizontal", 1, 2, 6, 2),
    Sketcher.Constraint("DistanceX", 1, 1, 1, 2, Q("1.2 mm")),
    Sketcher.Constraint("DistanceX", 3, 2, 4, 2, Q("15 mm")),
    Sketcher.Constraint("DistanceY", 0, 1, 0, 2, Q("5.002928 mm")),
    Sketcher.Constraint("DistanceY", 3, 2, -1, 1, Q("19.641499 mm")),
    Sketcher.Constraint("Distance", 3, Q("1.51999 mm")),
    Sketcher.Constraint("DistanceX", 7, 1, 7, 2, Q("1.247974 mm")),
    Sketcher.Constraint("DistanceY", 6, 1, 6, 2, Q("4.032696 mm")),
    Sketcher.Constraint("DistanceX", -1, 1, 5, 2, Q("7.622041 mm")),
])
pad2 = body.newObject("PartDesign::Pad", "Pad001")
pad2.Profile = sketch8
pad2.Length = 6
pad2.Reversed = True

sketch9 = body.newObject("Sketcher::SketchObject", "Sketch008")
sketch9.AttachmentSupport = (doc.getObject("XZ_Plane"), [""])
sketch9.MapMode = "FlatFace"
sketch9.AttachmentOffset = App.Placement(App.Vector(0, 0, -7.7), App.Rotation())
add_polygon(sketch9, [(-6.1, -16.1), (-6.1, -18.1), (-3.5, -16.1)])
add_polygon(sketch9, [(8.9, -18.1), (8.9, -16.1), (6.3, -16.1)])
sketch9.addConstraint([
    Sketcher.Constraint("Vertical", 0),
    Sketcher.Constraint("Horizontal", 2),
    Sketcher.Constraint("Vertical", 3),
    Sketcher.Constraint("Horizontal", 4),
    Sketcher.Constraint("Horizontal", 2, 2, 3, 2),
    Sketcher.Constraint("Horizontal", 0, 2, 5, 2),
    Sketcher.Constraint("Equal", 2, 4),
    Sketcher.Constraint("DistanceX", 2, 2, 3, 2, Q("15 mm")),
    Sketcher.Constraint("DistanceY", 0, 2, 0, 1, Q("2.032939 mm")),
    Sketcher.Constraint("DistanceX", 2, 2, 2, 1, Q("2.614894 mm")),
    Sketcher.Constraint("DistanceY", 0, 2, -1, 1, Q("18.121509 mm")),
    Sketcher.Constraint("DistanceX", 1, 2, -1, 1, Q("3.515091 mm")),
])
pad3 = body.newObject("PartDesign::Pad", "Pad002")
pad3.Profile = sketch9
pad3.Length = 7.7

doc.recompute()
